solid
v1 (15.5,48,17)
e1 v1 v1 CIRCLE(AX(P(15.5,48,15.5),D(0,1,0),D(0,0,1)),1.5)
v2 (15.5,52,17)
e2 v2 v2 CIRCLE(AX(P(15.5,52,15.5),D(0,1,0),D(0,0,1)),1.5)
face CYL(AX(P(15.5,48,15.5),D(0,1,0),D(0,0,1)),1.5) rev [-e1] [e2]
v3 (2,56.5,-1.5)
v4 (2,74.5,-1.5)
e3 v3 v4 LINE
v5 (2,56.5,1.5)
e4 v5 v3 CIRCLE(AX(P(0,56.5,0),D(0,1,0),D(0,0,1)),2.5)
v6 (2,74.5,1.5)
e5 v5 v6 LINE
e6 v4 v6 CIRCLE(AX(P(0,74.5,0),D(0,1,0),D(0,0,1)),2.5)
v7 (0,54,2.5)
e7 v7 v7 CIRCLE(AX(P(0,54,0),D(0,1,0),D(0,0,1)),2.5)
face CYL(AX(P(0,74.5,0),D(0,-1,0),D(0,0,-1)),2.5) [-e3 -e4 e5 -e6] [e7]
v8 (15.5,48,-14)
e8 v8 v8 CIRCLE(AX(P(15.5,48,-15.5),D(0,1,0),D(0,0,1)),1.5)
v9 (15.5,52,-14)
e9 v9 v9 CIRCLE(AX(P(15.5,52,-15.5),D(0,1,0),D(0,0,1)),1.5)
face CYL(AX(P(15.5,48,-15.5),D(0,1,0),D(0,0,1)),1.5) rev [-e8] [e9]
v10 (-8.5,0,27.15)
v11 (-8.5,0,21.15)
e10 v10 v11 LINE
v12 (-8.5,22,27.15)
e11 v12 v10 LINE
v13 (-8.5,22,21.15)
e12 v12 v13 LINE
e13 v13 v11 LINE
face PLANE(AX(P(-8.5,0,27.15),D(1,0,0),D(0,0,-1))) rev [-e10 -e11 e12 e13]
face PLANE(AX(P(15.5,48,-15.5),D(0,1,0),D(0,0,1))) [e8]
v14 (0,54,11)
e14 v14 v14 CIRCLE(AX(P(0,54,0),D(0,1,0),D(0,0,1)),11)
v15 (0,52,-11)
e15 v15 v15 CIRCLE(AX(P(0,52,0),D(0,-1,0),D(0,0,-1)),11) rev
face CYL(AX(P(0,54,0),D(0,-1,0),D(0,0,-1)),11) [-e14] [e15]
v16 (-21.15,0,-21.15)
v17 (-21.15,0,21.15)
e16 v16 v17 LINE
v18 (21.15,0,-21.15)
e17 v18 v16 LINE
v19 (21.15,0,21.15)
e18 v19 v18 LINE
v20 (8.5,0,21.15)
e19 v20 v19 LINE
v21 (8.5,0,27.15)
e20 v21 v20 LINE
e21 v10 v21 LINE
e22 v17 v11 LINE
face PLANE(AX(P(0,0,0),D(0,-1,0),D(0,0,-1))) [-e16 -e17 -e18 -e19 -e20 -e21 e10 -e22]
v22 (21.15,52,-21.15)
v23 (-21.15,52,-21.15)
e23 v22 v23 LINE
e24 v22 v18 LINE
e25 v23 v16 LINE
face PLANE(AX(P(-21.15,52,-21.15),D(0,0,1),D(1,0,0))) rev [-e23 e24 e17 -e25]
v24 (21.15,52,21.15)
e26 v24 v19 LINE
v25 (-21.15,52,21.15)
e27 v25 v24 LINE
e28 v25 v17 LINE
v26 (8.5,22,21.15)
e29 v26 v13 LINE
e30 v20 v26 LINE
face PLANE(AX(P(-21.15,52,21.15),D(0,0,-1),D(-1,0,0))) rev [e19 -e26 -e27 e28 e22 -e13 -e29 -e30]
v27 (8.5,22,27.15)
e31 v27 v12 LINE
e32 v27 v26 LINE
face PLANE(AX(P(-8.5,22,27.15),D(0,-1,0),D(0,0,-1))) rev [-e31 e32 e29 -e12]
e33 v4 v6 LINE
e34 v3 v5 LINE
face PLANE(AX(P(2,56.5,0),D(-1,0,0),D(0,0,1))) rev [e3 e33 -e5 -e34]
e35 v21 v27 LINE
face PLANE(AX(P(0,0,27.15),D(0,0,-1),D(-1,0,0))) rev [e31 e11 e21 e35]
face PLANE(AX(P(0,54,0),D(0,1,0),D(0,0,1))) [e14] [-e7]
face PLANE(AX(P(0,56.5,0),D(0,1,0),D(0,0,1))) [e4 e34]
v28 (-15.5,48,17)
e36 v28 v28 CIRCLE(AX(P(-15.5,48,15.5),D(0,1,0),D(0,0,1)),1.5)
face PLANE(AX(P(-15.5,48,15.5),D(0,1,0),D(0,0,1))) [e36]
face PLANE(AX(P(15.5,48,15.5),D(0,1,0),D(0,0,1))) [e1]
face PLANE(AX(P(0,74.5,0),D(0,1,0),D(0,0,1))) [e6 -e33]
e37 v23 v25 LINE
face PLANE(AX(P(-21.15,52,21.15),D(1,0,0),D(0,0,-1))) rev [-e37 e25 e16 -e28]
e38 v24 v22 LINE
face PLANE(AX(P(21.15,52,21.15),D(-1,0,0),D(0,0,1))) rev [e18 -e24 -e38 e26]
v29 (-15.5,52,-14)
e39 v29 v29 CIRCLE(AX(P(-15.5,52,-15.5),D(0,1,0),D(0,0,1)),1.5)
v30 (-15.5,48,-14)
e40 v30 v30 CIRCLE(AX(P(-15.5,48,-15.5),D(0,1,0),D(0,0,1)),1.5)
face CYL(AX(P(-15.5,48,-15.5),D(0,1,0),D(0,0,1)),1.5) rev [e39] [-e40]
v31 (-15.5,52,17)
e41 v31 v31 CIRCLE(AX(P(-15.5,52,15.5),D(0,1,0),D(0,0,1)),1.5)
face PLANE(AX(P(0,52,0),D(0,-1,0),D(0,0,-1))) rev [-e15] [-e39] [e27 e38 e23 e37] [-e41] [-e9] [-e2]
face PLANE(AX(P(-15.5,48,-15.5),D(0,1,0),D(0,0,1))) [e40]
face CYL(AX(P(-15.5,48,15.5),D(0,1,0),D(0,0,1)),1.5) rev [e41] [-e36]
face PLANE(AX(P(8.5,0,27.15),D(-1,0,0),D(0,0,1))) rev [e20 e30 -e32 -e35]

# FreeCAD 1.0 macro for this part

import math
import FreeCAD as App
import Part
import Sketcher
Q = App.Units.Quantity

doc = App.newDocument("Part")
body = doc.addObject("PartDesign::Body", "Body")

# Sketch on XZ plane
sketch1 = doc.addObject("Sketcher::SketchObject", "Sketch")
body.addObject(sketch1)
sketch1.AttachmentSupport = (doc.XZ_Plane, [""])
sketch1.MapMode = "FlatFace"
sketch1.addGeometry([
    Part.LineSegment(App.Vector(-21, -21, 0), App.Vector(-21, 21, 0)),
    Part.LineSegment(App.Vector(-21, 21, 0), App.Vector(21, 21, 0)),
    Part.LineSegment(App.Vector(21, 21, 0), App.Vector(21, -21, 0)),
    Part.LineSegment(App.Vector(21, -21, 0), App.Vector(-21, -21, 0)),
], False)
sketch1.addConstraint([
    Sketcher.Constraint("Coincident", 0, 2, 1, 1),
    Sketcher.Constraint("Coincident", 1, 2, 2, 1),
    Sketcher.Constraint("Coincident", 2, 2, 3, 1),
    Sketcher.Constraint("Coincident", 3, 2, 0, 1),
    Sketcher.Constraint("Vertical", 0),
    Sketcher.Constraint("Horizontal", 1),
    Sketcher.Constraint("Vertical", 2),
    Sketcher.Constraint("Horizontal", 3),
    Sketcher.Constraint("Symmetric", 0, 2, 2, 2, -1, 1),
    Sketcher.Constraint("Equal", 3, 0),
    Sketcher.Constraint("DistanceX", 1, 1, 1, 2, Q("42.3 mm")),
])
pad1 = doc.addObject("PartDesign::Pad", "Pad")
body.addObject(pad1)
pad1.Profile = sketch1
pad1.Length = 52
pad1.Reversed = True

# Sketch on XZ plane
sketch2 = doc.addObject("Sketcher::SketchObject", "Sketch001")
body.addObject(sketch2)
sketch2.AttachmentSupport = (doc.XZ_Plane, [""])
sketch2.MapMode = "FlatFace"
sketch2.AttachmentOffset = App.Placement(App.Vector(0, 0, -52), App.Rotation())
sketch2.addGeometry([
    Part.Circle(App.Vector(-15.5, -15.5, 0), App.Vector(0, 0, 1), 1.5),
    Part.Circle(App.Vector(15.5, -15.5, 0), App.Vector(0, 0, 1), 1.5),
    Part.Circle(App.Vector(15.5, 15.5, 0), App.Vector(0, 0, 1), 1.5),
    Part.Circle(App.Vector(-15.5, 15.5, 0), App.Vector(0, 0, 1), 1.5),
], False)
sketch2.addConstraint([
    Sketcher.Constraint("Equal", 0, 1),
    Sketcher.Constraint("Equal", 1, 2),
    Sketcher.Constraint("Equal", 2, 3),
    Sketcher.Constraint("Symmetric", 0, 3, 2, 3, -1, 1),
    Sketcher.Constraint("Symmetric", 1, 3, 3, 3, -1, 1),
    Sketcher.Constraint("Symmetric", 0, 3, 1, 3, -2),
    Sketcher.Constraint("Diameter", 0, Q("3 mm")),
    Sketcher.Constraint("DistanceX", 0, 3, 1, 3, Q("31 mm")),
    Sketcher.Constraint("DistanceY", 1, 3, 2, 3, Q("31 mm")),
])
pocket1 = doc.addObject("PartDesign::Pocket", "Pocket")
body.addObject(pocket1)
pocket1.Profile = sketch2
pocket1.Length = 4
pocket1.Reversed = True

# Sketch on XZ plane
sketch3 = doc.addObject("Sketcher::SketchObject", "Sketch002")
body.addObject(sketch3)
sketch3.AttachmentSupport = (doc.XZ_Plane, [""])
sketch3.MapMode = "FlatFace"
sketch3.AttachmentOffset = App.Placement(App.Vector(0, 0, -52), App.Rotation())
sketch3.addGeometry(Part.Circle(App.Vector(0, 0, 0), App.Vector(0, 0, 1), 11), False)
sketch3.addConstraint([
    Sketcher.Constraint("Coincident", 0, 3, -1, 1),
    Sketcher.Constraint("Diameter", 0, Q("22 mm")),
])
pad2 = doc.addObject("PartDesign::Pad", "Pad001")
body.addObject(pad2)
pad2.Profile = sketch3
pad2.Length = 2
pad2.Reversed = True

# Sketch on XZ plane
sketch4 = doc.addObject("Sketcher::SketchObject", "Sketch003")
body.addObject(sketch4)
sketch4.AttachmentSupport = (doc.XZ_Plane, [""])
sketch4.MapMode = "FlatFace"
sketch4.AttachmentOffset = App.Placement(App.Vector(0, 0, -54), App.Rotation())
sketch4.addGeometry(Part.Circle(App.Vector(0, 0, 0), App.Vector(0, 0, 1), 2.5), False)
sketch4.addConstraint([
    Sketcher.Constraint("Coincident", 0, 3, -1, 1),
    Sketcher.Constraint("Diameter", 0, Q("5 mm")),
])
pad3 = doc.addObject("PartDesign::Pad", "Pad002")
body.addObject(pad3)
pad3.Profile = sketch4
pad3.Length = 20.5
pad3.Reversed = True

# Sketch on XZ plane
sketch5 = doc.addObject("Sketcher::SketchObject", "Sketch004")
body.addObject(sketch5)
sketch5.AttachmentSupport = (doc.XZ_Plane, [""])
sketch5.MapMode = "FlatFace"
sketch5.AttachmentOffset = App.Placement(App.Vector(0, 0, -56.5), App.Rotation())
sketch5.addGeometry([
    Part.LineSegment(App.Vector(2, -1.5, 0), App.Vector(2, 1.5, 0)),
    Part.ArcOfCircle(Part.Circle(App.Vector(0, 0, 0), App.Vector(0, 0, 1), 2.5), math.radians(-37), math.radians(37)),
], False)
sketch5.addConstraint([
    Sketcher.Constraint("Coincident", 0, 1, 1, 1),
    Sketcher.Constraint("Coincident", 1, 2, 0, 2),
    Sketcher.Constraint("Vertical", 0),
    Sketcher.Constraint("Coincident", 1, 3, -1, 1),
    Sketcher.Constraint("Radius", 1, Q("2.5 mm")),
    Sketcher.Constraint("DistanceY", 0, 1, 0, 2, Q("3 mm")),
])
pocket2 = doc.addObject("PartDesign::Pocket", "Pocket001")
body.addObject(pocket2)
pocket2.Profile = sketch5
pocket2.Length = 18

# Sketch on XY plane
sketch6 = doc.addObject("Sketcher::SketchObject", "Sketch005")
body.addObject(sketch6)
sketch6.AttachmentSupport = (doc.XY_Plane, [""])
sketch6.MapMode = "FlatFace"
sketch6.AttachmentOffset = App.Placement(App.Vector(0, 0, 21.15), App.Rotation())
sketch6.addGeometry([
    Part.LineSegment(App.Vector(-8, 22, 0), App.Vector(-8, 0, 0)),
    Part.LineSegment(App.Vector(-8, 0, 0), App.Vector(8, 0, 0)),
    Part.LineSegment(App.Vector(8, 0, 0), App.Vector(8, 22, 0)),
    Part.LineSegment(App.Vector(8, 22, 0), App.Vector(-8, 22, 0)),
], False)
sketch6.addConstraint([
    Sketcher.Constraint("Coincident", 0, 2, 1, 1),
    Sketcher.Constraint("Coincident", 1, 2, 2, 1),
    Sketcher.Constraint("Coincident", 2, 2, 3, 1),
    Sketcher.Constraint("Coincident", 3, 2, 0, 1),
    Sketcher.Constraint("Vertical", 0),
    Sketcher.Constraint("Horizontal", 1),
    Sketcher.Constraint("Vertical", 2),
    Sketcher.Constraint("Horizontal", 3),
    Sketcher.Constraint("Symmetric", 0, 2, 1, 2, -1, 1),
    Sketcher.Constraint("DistanceX", 1, 1, 1, 2, Q("17 mm")),
    Sketcher.Constraint("DistanceY", 0, 2, 0, 1, Q("22 mm")),
])
pad4 = doc.addObject("PartDesign::Pad", "Pad003")
body.addObject(pad4)
pad4.Profile = sketch6
pad4.Length = 6

doc.recompute()
